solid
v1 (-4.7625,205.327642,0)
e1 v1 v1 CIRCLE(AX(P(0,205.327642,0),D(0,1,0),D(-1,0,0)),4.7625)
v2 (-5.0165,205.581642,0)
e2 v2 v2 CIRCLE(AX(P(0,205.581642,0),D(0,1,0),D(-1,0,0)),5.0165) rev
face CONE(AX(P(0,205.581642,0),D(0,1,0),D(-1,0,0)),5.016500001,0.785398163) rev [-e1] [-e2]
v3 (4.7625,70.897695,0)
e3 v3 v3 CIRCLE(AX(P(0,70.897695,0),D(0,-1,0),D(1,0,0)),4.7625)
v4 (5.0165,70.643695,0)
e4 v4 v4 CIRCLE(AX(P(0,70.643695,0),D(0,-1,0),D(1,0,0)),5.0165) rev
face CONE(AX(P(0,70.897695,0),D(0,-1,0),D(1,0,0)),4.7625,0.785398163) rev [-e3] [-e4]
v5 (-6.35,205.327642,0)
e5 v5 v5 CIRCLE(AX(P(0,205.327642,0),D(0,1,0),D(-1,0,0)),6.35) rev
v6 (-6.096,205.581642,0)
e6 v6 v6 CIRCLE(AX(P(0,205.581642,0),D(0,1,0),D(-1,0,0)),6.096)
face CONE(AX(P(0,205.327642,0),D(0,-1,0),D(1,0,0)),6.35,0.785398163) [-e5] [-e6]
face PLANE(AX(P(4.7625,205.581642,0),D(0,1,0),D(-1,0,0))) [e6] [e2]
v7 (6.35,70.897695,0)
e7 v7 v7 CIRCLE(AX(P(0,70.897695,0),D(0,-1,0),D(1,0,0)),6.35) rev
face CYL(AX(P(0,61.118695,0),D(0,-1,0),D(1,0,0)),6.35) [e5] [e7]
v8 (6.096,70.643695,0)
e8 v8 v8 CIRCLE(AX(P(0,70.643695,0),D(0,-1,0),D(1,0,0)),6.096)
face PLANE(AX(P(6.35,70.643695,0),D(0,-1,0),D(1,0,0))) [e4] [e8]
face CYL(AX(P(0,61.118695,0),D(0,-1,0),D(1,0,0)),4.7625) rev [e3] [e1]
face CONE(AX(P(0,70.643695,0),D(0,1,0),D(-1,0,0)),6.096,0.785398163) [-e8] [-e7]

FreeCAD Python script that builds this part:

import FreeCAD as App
import Part
import Sketcher

V = App.Vector
Q = App.Units.Quantity


def edges_at(feature, points):
    """Names of the edges that pass closest to the given points."""
    edges = feature.Shape.Edges
    near = lambda p: min(range(len(edges)), key=lambda i: edges[i].distToShape(Part.Vertex(*p))[0])
    return sorted({f"Edge{near(p) + 1}" for p in points})


def add_polygon(sketch, points):
    """Adds a closed chain of lines whose ends are joined by coincident constraints."""
    first, n = sketch.GeometryCount, len(points)
    for a, b in zip(points, points[1:] + points[:1]):
        sketch.addGeometry(Part.LineSegment(App.Vector(*a, 0), App.Vector(*b, 0)), False)
    for i in range(n):
        sketch.addConstraint(Sketcher.Constraint("Coincident", first + i, 2, first + (i + 1) % n, 1))

doc = App.newDocument("Part")
body = doc.addObject("PartDesign::Body", "Body")

# Sketch on XY plane
sketch1 = body.newObject("Sketcher::SketchObject", "Sketch")
sketch1.AttachmentSupport = (doc.getObject("XY_Plane"), [""])
sketch1.MapMode = "FlatFace"
add_polygon(sketch1, [(4.8, 205.6), (4.8, 70.6), (6.3, 70.6), (6.3, 205.6)])  # lines 0-3
sketch1.addConstraint(Sketcher.Constraint("Vertical", 0))
sketch1.addConstraint(Sketcher.Constraint("Horizontal", 1))
sketch1.addConstraint(Sketcher.Constraint("Vertical", 2))
sketch1.addConstraint(Sketcher.Constraint("Horizontal", 3))
sketch1.addConstraint(Sketcher.Constraint("DistanceX", 1, 1, 1, 2, Q("0.0625 in")))
sketch1.addConstraint(Sketcher.Constraint("DistanceX", -1, 1, 1, 2, Q("0.25 in")))
sketch1.addConstraint(Sketcher.Constraint("DistanceY", 0, 2, 0, 1, Q("134.937947 mm")))
sketch1.addConstraint(Sketcher.Constraint("DistanceY", -1, 1, 2, 2, Q("205.581642 mm")))
revolution = body.newObject("PartDesign::Revolution", "Revolution")
revolution.Profile = sketch1
revolution.ReferenceAxis = (sketch1, ["V_Axis"])
revolution.Angle = 360
doc.recompute()

chamfer = body.newObject("PartDesign::Chamfer", "Chamfer")
chamfer.Base = (revolution, edges_at(revolution, [
    (-6.35, 70.644, 0),
    (-6.35, 205.582, 0),
    (-4.763, 205.582, 0),
    (-4.763, 70.644, 0),
]))
chamfer.Size = Q("0.01 in")

doc.recompute()
